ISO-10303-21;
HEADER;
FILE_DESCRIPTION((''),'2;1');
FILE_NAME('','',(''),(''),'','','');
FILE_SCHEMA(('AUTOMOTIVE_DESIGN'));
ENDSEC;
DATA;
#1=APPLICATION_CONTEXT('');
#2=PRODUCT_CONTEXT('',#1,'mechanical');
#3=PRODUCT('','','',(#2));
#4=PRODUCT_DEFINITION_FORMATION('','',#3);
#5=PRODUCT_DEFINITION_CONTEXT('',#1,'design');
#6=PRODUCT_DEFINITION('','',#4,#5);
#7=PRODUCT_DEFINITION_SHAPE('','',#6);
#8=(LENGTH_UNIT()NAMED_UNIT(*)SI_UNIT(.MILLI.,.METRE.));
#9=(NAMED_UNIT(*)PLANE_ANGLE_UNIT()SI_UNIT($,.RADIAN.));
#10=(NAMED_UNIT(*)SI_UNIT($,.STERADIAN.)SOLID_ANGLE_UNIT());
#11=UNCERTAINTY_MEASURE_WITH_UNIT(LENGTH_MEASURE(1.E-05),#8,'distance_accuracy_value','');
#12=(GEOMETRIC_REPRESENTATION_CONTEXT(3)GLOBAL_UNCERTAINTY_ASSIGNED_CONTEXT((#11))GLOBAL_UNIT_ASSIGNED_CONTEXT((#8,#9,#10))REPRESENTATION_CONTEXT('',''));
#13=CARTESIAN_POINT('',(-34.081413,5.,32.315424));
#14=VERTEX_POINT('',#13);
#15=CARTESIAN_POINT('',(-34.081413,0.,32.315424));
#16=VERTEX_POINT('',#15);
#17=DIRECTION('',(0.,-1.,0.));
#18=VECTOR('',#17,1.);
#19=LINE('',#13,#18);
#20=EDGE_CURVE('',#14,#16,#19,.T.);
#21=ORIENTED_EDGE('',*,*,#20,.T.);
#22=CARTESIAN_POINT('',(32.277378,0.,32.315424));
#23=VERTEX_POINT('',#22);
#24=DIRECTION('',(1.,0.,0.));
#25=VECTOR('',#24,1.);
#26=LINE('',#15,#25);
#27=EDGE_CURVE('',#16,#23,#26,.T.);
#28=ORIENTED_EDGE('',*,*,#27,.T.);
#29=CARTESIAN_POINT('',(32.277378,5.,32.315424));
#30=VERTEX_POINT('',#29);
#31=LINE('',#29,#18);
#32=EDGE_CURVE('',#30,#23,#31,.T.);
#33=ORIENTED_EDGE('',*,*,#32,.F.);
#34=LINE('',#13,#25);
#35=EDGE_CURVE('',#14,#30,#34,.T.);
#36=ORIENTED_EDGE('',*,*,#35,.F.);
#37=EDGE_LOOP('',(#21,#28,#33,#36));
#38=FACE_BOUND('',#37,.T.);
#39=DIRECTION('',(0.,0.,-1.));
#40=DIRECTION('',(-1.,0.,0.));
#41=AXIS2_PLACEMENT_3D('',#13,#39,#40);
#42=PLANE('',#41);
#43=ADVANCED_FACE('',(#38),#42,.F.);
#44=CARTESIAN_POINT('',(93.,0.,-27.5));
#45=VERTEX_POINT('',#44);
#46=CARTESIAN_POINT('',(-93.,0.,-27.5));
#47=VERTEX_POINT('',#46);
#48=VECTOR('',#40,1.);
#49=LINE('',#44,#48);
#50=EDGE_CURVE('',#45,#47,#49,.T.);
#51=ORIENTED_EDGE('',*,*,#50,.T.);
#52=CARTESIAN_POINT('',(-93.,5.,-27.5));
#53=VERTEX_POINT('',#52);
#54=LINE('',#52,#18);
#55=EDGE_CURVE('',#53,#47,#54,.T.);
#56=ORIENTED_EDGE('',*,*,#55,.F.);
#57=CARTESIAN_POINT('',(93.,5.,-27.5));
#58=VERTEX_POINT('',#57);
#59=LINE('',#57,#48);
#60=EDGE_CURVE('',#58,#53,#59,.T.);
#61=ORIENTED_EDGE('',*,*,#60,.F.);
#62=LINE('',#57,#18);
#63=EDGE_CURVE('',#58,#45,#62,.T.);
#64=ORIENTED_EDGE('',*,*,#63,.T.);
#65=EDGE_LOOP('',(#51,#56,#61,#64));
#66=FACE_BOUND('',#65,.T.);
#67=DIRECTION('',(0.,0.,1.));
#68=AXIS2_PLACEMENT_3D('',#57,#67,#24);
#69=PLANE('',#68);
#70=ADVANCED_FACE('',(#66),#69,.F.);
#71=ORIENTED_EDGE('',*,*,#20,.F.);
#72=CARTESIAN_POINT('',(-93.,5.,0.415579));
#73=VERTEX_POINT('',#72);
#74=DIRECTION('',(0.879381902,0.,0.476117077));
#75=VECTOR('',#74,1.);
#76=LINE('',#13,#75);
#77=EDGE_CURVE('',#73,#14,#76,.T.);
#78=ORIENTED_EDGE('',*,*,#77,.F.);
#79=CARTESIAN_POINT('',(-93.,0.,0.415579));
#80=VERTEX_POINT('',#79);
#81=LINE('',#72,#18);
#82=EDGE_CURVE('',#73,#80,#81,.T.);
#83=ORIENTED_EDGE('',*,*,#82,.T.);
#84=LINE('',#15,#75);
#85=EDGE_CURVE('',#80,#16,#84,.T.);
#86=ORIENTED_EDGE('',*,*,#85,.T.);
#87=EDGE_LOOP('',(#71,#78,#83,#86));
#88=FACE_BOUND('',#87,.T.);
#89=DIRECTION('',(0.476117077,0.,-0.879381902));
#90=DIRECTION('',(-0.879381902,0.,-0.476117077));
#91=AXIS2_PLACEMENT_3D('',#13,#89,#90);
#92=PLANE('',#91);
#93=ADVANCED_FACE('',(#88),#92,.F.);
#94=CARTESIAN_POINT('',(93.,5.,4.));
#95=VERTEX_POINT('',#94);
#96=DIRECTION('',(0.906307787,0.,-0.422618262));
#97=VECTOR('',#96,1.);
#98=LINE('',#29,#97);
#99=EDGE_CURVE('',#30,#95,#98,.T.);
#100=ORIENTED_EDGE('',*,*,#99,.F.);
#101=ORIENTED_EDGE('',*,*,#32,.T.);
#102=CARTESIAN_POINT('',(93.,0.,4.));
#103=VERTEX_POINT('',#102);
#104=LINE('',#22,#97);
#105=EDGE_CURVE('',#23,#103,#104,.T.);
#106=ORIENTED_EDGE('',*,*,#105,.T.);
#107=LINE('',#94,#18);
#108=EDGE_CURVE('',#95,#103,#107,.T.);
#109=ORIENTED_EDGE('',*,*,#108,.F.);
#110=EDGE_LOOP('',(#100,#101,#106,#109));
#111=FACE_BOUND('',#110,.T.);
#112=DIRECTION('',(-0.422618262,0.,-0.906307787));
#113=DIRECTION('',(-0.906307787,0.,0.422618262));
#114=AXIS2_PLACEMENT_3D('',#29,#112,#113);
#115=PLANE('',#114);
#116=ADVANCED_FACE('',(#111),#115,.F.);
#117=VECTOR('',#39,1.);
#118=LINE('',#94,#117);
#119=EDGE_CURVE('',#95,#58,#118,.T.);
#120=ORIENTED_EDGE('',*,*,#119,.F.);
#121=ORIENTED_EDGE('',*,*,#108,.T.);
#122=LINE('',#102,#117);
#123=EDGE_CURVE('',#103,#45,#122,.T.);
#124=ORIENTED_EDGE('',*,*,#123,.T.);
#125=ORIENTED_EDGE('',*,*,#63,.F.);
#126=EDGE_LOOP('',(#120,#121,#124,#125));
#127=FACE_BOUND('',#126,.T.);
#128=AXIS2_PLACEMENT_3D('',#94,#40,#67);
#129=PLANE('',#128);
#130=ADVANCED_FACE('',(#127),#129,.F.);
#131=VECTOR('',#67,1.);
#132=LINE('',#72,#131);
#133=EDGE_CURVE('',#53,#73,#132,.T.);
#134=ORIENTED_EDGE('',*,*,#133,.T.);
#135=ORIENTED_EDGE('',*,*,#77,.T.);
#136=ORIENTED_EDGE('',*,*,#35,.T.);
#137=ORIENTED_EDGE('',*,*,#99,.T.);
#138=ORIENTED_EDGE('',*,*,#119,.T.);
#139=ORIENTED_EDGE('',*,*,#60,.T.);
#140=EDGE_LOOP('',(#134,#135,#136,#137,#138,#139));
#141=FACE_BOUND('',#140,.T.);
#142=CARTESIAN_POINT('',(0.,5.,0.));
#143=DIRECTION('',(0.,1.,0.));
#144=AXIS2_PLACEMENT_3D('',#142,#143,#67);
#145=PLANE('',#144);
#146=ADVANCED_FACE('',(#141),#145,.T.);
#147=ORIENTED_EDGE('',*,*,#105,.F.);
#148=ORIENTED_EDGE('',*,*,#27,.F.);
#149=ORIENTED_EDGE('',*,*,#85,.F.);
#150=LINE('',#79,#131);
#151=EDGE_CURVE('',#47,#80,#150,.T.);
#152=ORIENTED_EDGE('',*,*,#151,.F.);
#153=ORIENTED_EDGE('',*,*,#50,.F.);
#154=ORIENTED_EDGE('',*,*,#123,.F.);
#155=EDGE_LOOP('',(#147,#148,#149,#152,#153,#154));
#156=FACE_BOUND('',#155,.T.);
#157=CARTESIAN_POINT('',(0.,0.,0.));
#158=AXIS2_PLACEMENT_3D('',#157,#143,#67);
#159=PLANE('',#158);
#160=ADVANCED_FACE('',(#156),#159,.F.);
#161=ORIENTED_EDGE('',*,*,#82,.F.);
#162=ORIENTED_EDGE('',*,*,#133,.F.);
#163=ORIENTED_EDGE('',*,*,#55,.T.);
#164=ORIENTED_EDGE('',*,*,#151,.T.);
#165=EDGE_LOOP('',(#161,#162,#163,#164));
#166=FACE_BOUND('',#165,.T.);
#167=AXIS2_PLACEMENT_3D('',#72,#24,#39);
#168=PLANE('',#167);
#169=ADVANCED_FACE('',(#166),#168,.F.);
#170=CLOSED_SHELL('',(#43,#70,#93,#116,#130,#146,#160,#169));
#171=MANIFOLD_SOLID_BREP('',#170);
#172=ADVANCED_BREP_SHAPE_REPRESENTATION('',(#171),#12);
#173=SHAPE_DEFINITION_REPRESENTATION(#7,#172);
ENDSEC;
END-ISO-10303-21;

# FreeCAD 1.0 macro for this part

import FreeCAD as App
import Part
import Sketcher
Q = App.Units.Quantity

doc = App.newDocument("Part")
body = doc.addObject("PartDesign::Body", "Body")

# Sketch on XZ plane
sketch1 = doc.addObject("Sketcher::SketchObject", "Sketch")
body.addObject(sketch1)
sketch1.AttachmentSupport = (doc.XZ_Plane, [""])
sketch1.MapMode = "FlatFace"
sketch1.addGeometry([
    Part.LineSegment(App.Vector(-34, 32, 0), App.Vector(32, 32, 0)),  # 0
    Part.LineSegment(App.Vector(32, 32, 0), App.Vector(93, 4, 0)),  # 1
    Part.LineSegment(App.Vector(93, 4, 0), App.Vector(93, -28, 0)),  # 2
    Part.LineSegment(App.Vector(93, -28, 0), App.Vector(-93, -28, 0)),  # 3
    Part.LineSegment(App.Vector(-93, -28, 0), App.Vector(-93, 0, 0)),  # 4
    Part.LineSegment(App.Vector(-93, 0, 0), App.Vector(-34, 32, 0)),  # 5
], False)
sketch1.addConstraint([
    Sketcher.Constraint("Coincident", 0, 2, 1, 1),
    Sketcher.Constraint("Coincident", 1, 2, 2, 1),
    Sketcher.Constraint("Coincident", 2, 2, 3, 1),
    Sketcher.Constraint("Coincident", 3, 2, 4, 1),
    Sketcher.Constraint("Coincident", 4, 2, 5, 1),
    Sketcher.Constraint("Coincident", 5, 2, 0, 1),
    Sketcher.Constraint("Horizontal", 0),
    Sketcher.Constraint("Vertical", 2),
    Sketcher.Constraint("Horizontal", 3),
    Sketcher.Constraint("Vertical", 4),
    Sketcher.Constraint("Equal", 1, 5),
    Sketcher.Constraint("DistanceX", 3, 2, 3, 1, 186.0),
    Sketcher.Constraint("Angle", 1, Q("-25 deg")),
    Sketcher.Constraint("Distance", 1, 67.0),
    Sketcher.Constraint("DistanceY", 2, 2, 2, 1, 31.5),
    Sketcher.Constraint("DistanceX", -1, 1, 1, 2, 93.0),
    Sketcher.Constraint("DistanceY", -1, 1, 1, 2, 4.0),
    Sketcher.Constraint("DistanceX", 0, 1, 0, 2, 66.358791),
])
pad1 = doc.addObject("PartDesign::Pad", "Pad")
body.addObject(pad1)
pad1.Profile = sketch1
pad1.Length = 5
pad1.Reversed = True

doc.recompute()
